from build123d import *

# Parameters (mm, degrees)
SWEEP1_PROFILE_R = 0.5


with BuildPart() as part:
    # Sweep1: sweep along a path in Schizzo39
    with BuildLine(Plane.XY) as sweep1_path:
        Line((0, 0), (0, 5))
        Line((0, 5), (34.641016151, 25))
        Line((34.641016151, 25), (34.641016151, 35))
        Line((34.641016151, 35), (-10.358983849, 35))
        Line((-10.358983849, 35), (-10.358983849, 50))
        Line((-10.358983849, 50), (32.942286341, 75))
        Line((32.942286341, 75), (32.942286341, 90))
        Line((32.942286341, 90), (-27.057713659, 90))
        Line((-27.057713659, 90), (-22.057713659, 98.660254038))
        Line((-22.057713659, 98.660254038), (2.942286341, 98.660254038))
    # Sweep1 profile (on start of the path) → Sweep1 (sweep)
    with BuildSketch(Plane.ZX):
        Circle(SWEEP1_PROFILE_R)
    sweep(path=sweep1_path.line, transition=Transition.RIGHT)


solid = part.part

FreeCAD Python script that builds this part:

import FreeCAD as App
import Part
import Sketcher

V = App.Vector
Q = App.Units.Quantity

doc = App.newDocument("Part")
body = doc.addObject("PartDesign::Body", "Body")

sketch1 = doc.addObject("Sketcher::SketchObject", "Sketch")
body.addObject(sketch1)
sketch1.AttachmentSupport = (doc.XZ_Plane, [""])
sketch1.MapMode = "FlatFace"
sketch1.addGeometry(Part.Circle(V(0, 0, 0), V(0, 0, 1), 0.5), False)
sketch1.addConstraint(Sketcher.Constraint("Coincident", 0, 3, -1, 1))
sketch1.addConstraint(Sketcher.Constraint("Diameter", 0, 1.0))

sketch2 = doc.addObject("Sketcher::SketchObject", "Sketch001")
body.addObject(sketch2)
sketch2.AttachmentSupport = (doc.XY_Plane, [""])
sketch2.MapMode = "FlatFace"
sketch2.addGeometry(Part.LineSegment(V(0, 0, 0), V(0, 5, 0)), False)
sketch2.addGeometry(Part.LineSegment(V(0, 5, 0), V(35, 25, 0)), False)
sketch2.addGeometry(Part.LineSegment(V(35, 25, 0), V(35, 35, 0)), False)
sketch2.addGeometry(Part.LineSegment(V(35, 35, 0), V(-10, 35, 0)), False)
sketch2.addGeometry(Part.LineSegment(V(-10, 35, 0), V(-10, 50, 0)), False)
sketch2.addGeometry(Part.LineSegment(V(-10, 50, 0), V(33, 75, 0)), False)
sketch2.addGeometry(Part.LineSegment(V(33, 75, 0), V(33, 90, 0)), False)
sketch2.addGeometry(Part.LineSegment(V(33, 90, 0), V(-27, 90, 0)), False)
sketch2.addGeometry(Part.LineSegment(V(-27, 90, 0), V(-22, 99, 0)), False)
sketch2.addGeometry(Part.LineSegment(V(-22, 99, 0), V(3, 99, 0)), False)
sketch2.addConstraint(Sketcher.Constraint("Coincident", 0, 2, 1, 1))
sketch2.addConstraint(Sketcher.Constraint("Coincident", 1, 2, 2, 1))
sketch2.addConstraint(Sketcher.Constraint("Coincident", 2, 2, 3, 1))
sketch2.addConstraint(Sketcher.Constraint("Coincident", 3, 2, 4, 1))
sketch2.addConstraint(Sketcher.Constraint("Coincident", 4, 2, 5, 1))
sketch2.addConstraint(Sketcher.Constraint("Coincident", 5, 2, 6, 1))
sketch2.addConstraint(Sketcher.Constraint("Coincident", 6, 2, 7, 1))
sketch2.addConstraint(Sketcher.Constraint("Coincident", 7, 2, 8, 1))
sketch2.addConstraint(Sketcher.Constraint("Coincident", 8, 2, 9, 1))
sketch2.addConstraint(Sketcher.Constraint("Vertical", 0))
sketch2.addConstraint(Sketcher.Constraint("Vertical", 2))
sketch2.addConstraint(Sketcher.Constraint("Horizontal", 3))
sketch2.addConstraint(Sketcher.Constraint("Vertical", 4))
sketch2.addConstraint(Sketcher.Constraint("Vertical", 6))
sketch2.addConstraint(Sketcher.Constraint("Horizontal", 7))
sketch2.addConstraint(Sketcher.Constraint("Horizontal", 9))
sketch2.addConstraint(Sketcher.Constraint("Coincident", 0, 1, -1, 1))
sketch2.addConstraint(Sketcher.Constraint("Parallel", 1, 5))
sketch2.addConstraint(Sketcher.Constraint("Equal", 4, 6))
sketch2.addConstraint(Sketcher.Constraint("DistanceX", 3, 2, 3, 1, 45.0))
sketch2.addConstraint(Sketcher.Constraint("DistanceX", 7, 2, 7, 1, 60.0))
sketch2.addConstraint(Sketcher.Constraint("DistanceX", 9, 1, 9, 2, 25.0))
sketch2.addConstraint(Sketcher.Constraint("DistanceY", 0, 1, 0, 2, 5.0))
sketch2.addConstraint(Sketcher.Constraint("DistanceY", 2, 1, 2, 2, 10.0))
sketch2.addConstraint(Sketcher.Constraint("DistanceY", 4, 1, 4, 2, 15.0))
sketch2.addConstraint(Sketcher.Constraint("Angle", 1, Q("30 deg")))
sketch2.addConstraint(Sketcher.Constraint("Angle", 8, Q("60 deg")))
sketch2.addConstraint(Sketcher.Constraint("Distance", 1, 40.0))
sketch2.addConstraint(Sketcher.Constraint("Distance", 5, 50.0))
sketch2.addConstraint(Sketcher.Constraint("Distance", 8, 10.0))
doc.recompute()

additivepipe = doc.addObject("PartDesign::AdditivePipe", "AdditivePipe")
body.addObject(additivepipe)
additivepipe.Profile = sketch1
additivepipe.Spine = (sketch2, ["Edge1", "Edge2", "Edge3", "Edge4", "Edge5", "Edge6", "Edge7", "Edge8", "Edge9", "Edge10"])
additivepipe.Transition = "Right corner"

doc.recompute()
